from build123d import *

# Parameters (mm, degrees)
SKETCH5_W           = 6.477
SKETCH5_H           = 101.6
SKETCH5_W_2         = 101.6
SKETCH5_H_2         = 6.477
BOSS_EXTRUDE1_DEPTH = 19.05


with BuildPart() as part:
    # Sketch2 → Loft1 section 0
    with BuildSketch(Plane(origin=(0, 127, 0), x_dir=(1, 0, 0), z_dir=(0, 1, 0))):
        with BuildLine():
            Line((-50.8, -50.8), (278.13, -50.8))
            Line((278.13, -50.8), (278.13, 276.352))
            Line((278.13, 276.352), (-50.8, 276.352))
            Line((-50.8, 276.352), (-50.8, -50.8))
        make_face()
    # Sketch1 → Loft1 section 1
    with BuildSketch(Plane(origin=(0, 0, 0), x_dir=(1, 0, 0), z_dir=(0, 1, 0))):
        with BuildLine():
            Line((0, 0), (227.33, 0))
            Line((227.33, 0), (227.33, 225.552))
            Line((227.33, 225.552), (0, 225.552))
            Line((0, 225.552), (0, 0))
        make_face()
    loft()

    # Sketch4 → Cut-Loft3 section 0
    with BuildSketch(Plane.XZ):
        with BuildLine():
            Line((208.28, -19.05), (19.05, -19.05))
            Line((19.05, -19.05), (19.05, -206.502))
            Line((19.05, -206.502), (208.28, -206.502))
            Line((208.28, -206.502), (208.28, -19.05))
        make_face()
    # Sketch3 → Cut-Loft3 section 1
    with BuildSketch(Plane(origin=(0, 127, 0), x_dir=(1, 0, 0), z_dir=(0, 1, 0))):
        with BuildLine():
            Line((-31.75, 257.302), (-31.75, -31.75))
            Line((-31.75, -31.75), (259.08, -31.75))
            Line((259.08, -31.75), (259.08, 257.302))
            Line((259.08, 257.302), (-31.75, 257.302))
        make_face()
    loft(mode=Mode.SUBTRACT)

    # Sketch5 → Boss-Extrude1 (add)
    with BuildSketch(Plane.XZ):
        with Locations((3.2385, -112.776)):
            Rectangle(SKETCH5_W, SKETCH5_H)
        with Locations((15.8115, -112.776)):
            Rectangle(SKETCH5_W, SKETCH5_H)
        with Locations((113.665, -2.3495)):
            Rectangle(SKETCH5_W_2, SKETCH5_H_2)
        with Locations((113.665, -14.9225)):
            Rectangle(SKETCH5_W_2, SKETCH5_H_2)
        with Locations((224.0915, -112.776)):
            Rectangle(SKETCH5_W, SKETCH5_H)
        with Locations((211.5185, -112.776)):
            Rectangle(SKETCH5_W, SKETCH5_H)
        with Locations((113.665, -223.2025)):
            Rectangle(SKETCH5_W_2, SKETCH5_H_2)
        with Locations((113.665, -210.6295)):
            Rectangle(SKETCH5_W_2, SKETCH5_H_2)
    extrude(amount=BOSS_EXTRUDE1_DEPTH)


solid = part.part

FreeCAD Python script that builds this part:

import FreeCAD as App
import Part
import Sketcher

V = App.Vector
Q = App.Units.Quantity


def add_polygon(sketch, points):
    """Adds a closed chain of lines whose ends are joined by coincident constraints."""
    first, n = sketch.GeometryCount, len(points)
    for a, b in zip(points, points[1:] + points[:1]):
        sketch.addGeometry(Part.LineSegment(App.Vector(*a, 0), App.Vector(*b, 0)), False)
    for i in range(n):
        sketch.addConstraint(Sketcher.Constraint("Coincident", first + i, 2, first + (i + 1) % n, 1))

doc = App.newDocument("Part")
body = doc.addObject("PartDesign::Body", "Body")

# Sketch on XZ plane
sketch1 = body.newObject("Sketcher::SketchObject", "Sketch")
sketch1.AttachmentSupport = (doc.getObject("XZ_Plane"), [""])
sketch1.MapMode = "FlatFace"
sketch1.AttachmentOffset = App.Placement(V(0, 0, -5 * 25.4), App.Rotation())
add_polygon(sketch1, [(-50.8, 50.8), (278.13, 50.8), (278.13, -276.352), (-50.8, -276.352)])  # lines 0-3
sketch1.addConstraint([
    Sketcher.Constraint("Horizontal", 0),
    Sketcher.Constraint("Vertical", 1),
    Sketcher.Constraint("Horizontal", 2),
    Sketcher.Constraint("Vertical", 3),
    Sketcher.Constraint("DistanceY", -1, 1, 0, 2, Q("2 in")),
    Sketcher.Constraint("DistanceX", 2, 2, -1, 1, Q("2 in")),
    Sketcher.Constraint("DistanceX", 0, 1, 0, 2, Q("12.95 in")),
    Sketcher.Constraint("DistanceY", 1, 2, 1, 1, Q("12.88 in")),
])

# Sketch on XZ plane
sketch2 = body.newObject("Sketcher::SketchObject", "Sketch001")
sketch2.AttachmentSupport = (doc.getObject("XZ_Plane"), [""])
sketch2.MapMode = "FlatFace"
add_polygon(sketch2, [(0, 0), (227.33, 0), (227.33, -225.552), (0, -225.552)])  # lines 0-3
sketch2.addConstraint([
    Sketcher.Constraint("Horizontal", 0),
    Sketcher.Constraint("Vertical", 1),
    Sketcher.Constraint("Horizontal", 2),
    Sketcher.Constraint("Vertical", 3),
    Sketcher.Constraint("Coincident", 3, 2, -1, 1),
    Sketcher.Constraint("DistanceX", 0, 1, 0, 2, Q("8.95 in")),
    Sketcher.Constraint("DistanceY", 1, 2, 1, 1, Q("8.88 in")),
])

additiveloft = body.newObject("PartDesign::AdditiveLoft", "AdditiveLoft")
additiveloft.Profile = sketch1
additiveloft.Sections = [sketch2]

# Sketch on XZ plane
sketch3 = body.newObject("Sketcher::SketchObject", "Sketch002")
sketch3.AttachmentSupport = (doc.getObject("XZ_Plane"), [""])
sketch3.MapMode = "FlatFace"
add_polygon(sketch3, [(208.28, -19.05), (19.05, -19.05), (19.05, -206.502), (208.28, -206.502)])  # lines 0-3
sketch3.addConstraint([
    Sketcher.Constraint("Horizontal", 0),
    Sketcher.Constraint("Vertical", 1),
    Sketcher.Constraint("Horizontal", 2),
    Sketcher.Constraint("Vertical", 3),
    Sketcher.Constraint("DistanceX", 0, 2, 0, 1, Q("7.45 in")),
    Sketcher.Constraint("DistanceY", 1, 2, 1, 1, Q("7.38 in")),
    Sketcher.Constraint("DistanceX", -1, 1, 2, 2, Q("8.2 in")),
    Sketcher.Constraint("DistanceY", 0, 2, -1, 1, Q("0.75 in")),
])

# Sketch on XZ plane
sketch4 = body.newObject("Sketcher::SketchObject", "Sketch003")
sketch4.AttachmentSupport = (doc.getObject("XZ_Plane"), [""])
sketch4.MapMode = "FlatFace"
sketch4.AttachmentOffset = App.Placement(V(0, 0, -5 * 25.4), App.Rotation())
add_polygon(sketch4, [(-31.75, -257.302), (-31.75, 31.75), (259.08, 31.75), (259.08, -257.302)])  # lines 0-3
sketch4.addConstraint([
    Sketcher.Constraint("Vertical", 0),
    Sketcher.Constraint("Horizontal", 1),
    Sketcher.Constraint("Vertical", 2),
    Sketcher.Constraint("Horizontal", 3),
    Sketcher.Constraint("DistanceX", 1, 1, 1, 2, Q("11.45 in")),
    Sketcher.Constraint("DistanceY", 0, 1, 0, 2, Q("11.38 in")),
    Sketcher.Constraint("DistanceX", -1, 1, 1, 2, Q("10.2 in")),
    Sketcher.Constraint("DistanceY", -1, 1, 0, 2, Q("1.25 in")),
])

subtractiveloft = body.newObject("PartDesign::SubtractiveLoft", "SubtractiveLoft")
subtractiveloft.Profile = sketch3
subtractiveloft.Sections = [sketch4]

# Sketch on XZ plane
sketch5 = body.newObject("Sketcher::SketchObject", "Sketch004")
sketch5.AttachmentSupport = (doc.getObject("XZ_Plane"), [""])
sketch5.MapMode = "FlatFace"
add_polygon(sketch5, [(0, -61.976), (0, -163.576), (6.477, -163.576), (6.477, -61.976)])  # lines 0-3
add_polygon(sketch5, [(12.573, -61.976), (12.573, -163.576), (19.05, -163.576), (19.05, -61.976)])  # lines 4-7
add_polygon(sketch5, [(62.865, 0.889), (62.865, -5.588), (164.465, -5.588), (164.465, 0.889)])  # lines 8-11
add_polygon(sketch5, [(62.865, -11.684), (62.865, -18.161), (164.465, -18.161), (164.465, -11.684)])  # lines 12-15
add_polygon(sketch5, [(220.853, -61.976), (220.853, -163.576), (227.33, -163.576), (227.33, -61.976)])  # lines 16-19
add_polygon(sketch5, [(208.28, -61.976), (208.28, -163.576), (214.757, -163.576), (214.757, -61.976)])  # lines 20-23
add_polygon(sketch5, [(62.865, -219.964), (62.865, -226.441), (164.465, -226.441), (164.465, -219.964)])  # lines 24-27
add_polygon(sketch5, [(62.865, -207.391), (62.865, -213.868), (164.465, -213.868), (164.465, -207.391)])  # lines 28-31
sketch5.addConstraint([
    Sketcher.Constraint("Vertical", 0),
    Sketcher.Constraint("Horizontal", 1),
    Sketcher.Constraint("Vertical", 2),
    Sketcher.Constraint("Horizontal", 3),
    Sketcher.Constraint("Vertical", 4),
    Sketcher.Constraint("Horizontal", 5),
    Sketcher.Constraint("Vertical", 6),
    Sketcher.Constraint("Horizontal", 7),
    Sketcher.Constraint("Vertical", 8),
    Sketcher.Constraint("Horizontal", 9),
    Sketcher.Constraint("Vertical", 10),
    Sketcher.Constraint("Horizontal", 11),
    Sketcher.Constraint("Vertical", 12),
    Sketcher.Constraint("Horizontal", 13),
    Sketcher.Constraint("Vertical", 14),
    Sketcher.Constraint("Horizontal", 15),
    Sketcher.Constraint("Vertical", 16),
    Sketcher.Constraint("Horizontal", 17),
    Sketcher.Constraint("Vertical", 18),
    Sketcher.Constraint("Horizontal", 19),
    Sketcher.Constraint("Vertical", 20),
    Sketcher.Constraint("Horizontal", 21),
    Sketcher.Constraint("Vertical", 22),
    Sketcher.Constraint("Horizontal", 23),
    Sketcher.Constraint("Vertical", 24),
    Sketcher.Constraint("Horizontal", 25),
    Sketcher.Constraint("Vertical", 26),
    Sketcher.Constraint("Horizontal", 27),
    Sketcher.Constraint("Vertical", 28),
    Sketcher.Constraint("Horizontal", 29),
    Sketcher.Constraint("Vertical", 30),
    Sketcher.Constraint("Horizontal", 31),
    Sketcher.Constraint("PointOnObject", 0, 2, -2),
    Sketcher.Constraint("Horizontal", 1, 2, 4, 2),
    Sketcher.Constraint("Horizontal", 3, 2, 6, 2),
    Sketcher.Constraint("Horizontal", 5, 2, 16, 2),
    Sketcher.Constraint("Horizontal", 7, 2, 18, 2),
    Sketcher.Constraint("Horizontal", 17, 2, 20, 2),
    Sketcher.Constraint("Horizontal", 19, 2, 22, 2),
    Sketcher.Constraint("Vertical", 11, 2, 12, 2),
    Sketcher.Constraint("Vertical", 10, 2, 13, 2),
    Sketcher.Constraint("Vertical", 15, 2, 24, 2),
    Sketcher.Constraint("Vertical", 14, 2, 25, 2),
    Sketcher.Constraint("Vertical", 27, 2, 28, 2),
    Sketcher.Constraint("Vertical", 26, 2, 29, 2),
    Sketcher.Constraint("Equal", 3, 5),
    Sketcher.Constraint("Equal", 7, 17),
    Sketcher.Constraint("Equal", 19, 21),
    Sketcher.Constraint("Equal", 31, 0),
    Sketcher.Constraint("Equal", 23, 8),
    Sketcher.Constraint("Equal", 10, 12),
    Sketcher.Constraint("Equal", 14, 24),
    Sketcher.Constraint("Equal", 26, 28),
    Sketcher.Constraint("DistanceX", 9, 1, 9, 2, Q("4 in")),
    Sketcher.Constraint("DistanceX", -1, 1, 20, 2, Q("8.2 in")),
    Sketcher.Constraint("DistanceX", 1, 1, 1, 2, Q("0.255 in")),
    Sketcher.Constraint("DistanceY", 0, 2, -1, 1, Q("6.44 in")),
    Sketcher.Constraint("DistanceX", -1, 1, 5, 2, Q("0.75 in")),
    Sketcher.Constraint("DistanceY", 8, 2, -1, 1, Q("0.22 in")),
    Sketcher.Constraint("DistanceY", 14, 2, -1, 1, Q("0.46 in")),
    Sketcher.Constraint("DistanceX", -1, 1, 17, 2, Q("8.95 in")),
    Sketcher.Constraint("DistanceY", 26, 2, -1, 1, Q("8.66 in")),
    Sketcher.Constraint("DistanceY", 28, 2, -1, 1, Q("8.42 in")),
    Sketcher.Constraint("DistanceX", 7, 2, 8, 2, Q("1.98 in")),
])
pad1 = body.newObject("PartDesign::Pad", "Pad")
pad1.Profile = sketch5
pad1.Length = Q("0.75 in")

doc.recompute()
